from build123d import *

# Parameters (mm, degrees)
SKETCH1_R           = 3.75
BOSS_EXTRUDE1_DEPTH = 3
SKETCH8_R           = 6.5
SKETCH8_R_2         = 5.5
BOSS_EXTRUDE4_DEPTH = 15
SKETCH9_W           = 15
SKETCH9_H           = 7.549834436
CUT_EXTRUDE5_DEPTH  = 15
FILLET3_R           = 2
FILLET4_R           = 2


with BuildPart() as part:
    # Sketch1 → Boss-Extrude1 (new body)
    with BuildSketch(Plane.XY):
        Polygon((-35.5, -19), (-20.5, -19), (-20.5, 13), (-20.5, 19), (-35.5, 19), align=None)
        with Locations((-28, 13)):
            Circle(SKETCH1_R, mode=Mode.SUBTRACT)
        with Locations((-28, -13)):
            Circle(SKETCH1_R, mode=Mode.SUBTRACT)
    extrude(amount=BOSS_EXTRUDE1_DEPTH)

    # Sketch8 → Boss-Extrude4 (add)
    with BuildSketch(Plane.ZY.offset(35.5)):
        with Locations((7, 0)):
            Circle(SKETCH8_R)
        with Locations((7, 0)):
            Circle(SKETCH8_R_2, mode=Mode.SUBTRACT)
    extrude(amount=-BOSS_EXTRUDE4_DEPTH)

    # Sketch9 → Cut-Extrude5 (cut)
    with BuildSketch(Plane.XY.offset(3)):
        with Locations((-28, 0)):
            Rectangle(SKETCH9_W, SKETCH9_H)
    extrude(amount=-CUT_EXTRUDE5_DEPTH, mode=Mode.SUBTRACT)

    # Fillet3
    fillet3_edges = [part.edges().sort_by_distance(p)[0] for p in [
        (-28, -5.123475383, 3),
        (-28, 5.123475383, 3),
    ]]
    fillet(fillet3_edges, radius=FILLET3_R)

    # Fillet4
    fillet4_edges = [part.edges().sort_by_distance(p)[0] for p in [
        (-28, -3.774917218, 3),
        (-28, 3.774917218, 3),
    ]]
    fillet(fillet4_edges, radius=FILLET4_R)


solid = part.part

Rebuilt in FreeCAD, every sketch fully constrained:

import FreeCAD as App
import Part
import Sketcher

V = App.Vector
Q = App.Units.Quantity


def edges_at(feature, points):
    """Names of the edges that pass closest to the given points."""
    edges = feature.Shape.Edges
    near = lambda p: min(range(len(edges)), key=lambda i: edges[i].distToShape(Part.Vertex(*p))[0])
    return sorted({f"Edge{near(p) + 1}" for p in points})


def add_polygon(sketch, points):
    """Adds a closed chain of lines whose ends are joined by coincident constraints."""
    first, n = sketch.GeometryCount, len(points)
    for a, b in zip(points, points[1:] + points[:1]):
        sketch.addGeometry(Part.LineSegment(App.Vector(*a, 0), App.Vector(*b, 0)), False)
    for i in range(n):
        sketch.addConstraint(Sketcher.Constraint("Coincident", first + i, 2, first + (i + 1) % n, 1))

doc = App.newDocument("Part")
params = doc.addObject("Spreadsheet::Sheet", "Params")
for row, (alias, value) in enumerate([
    ("sketch1_diameter", "7.5 mm"),
    ("sketch1_width", "15 mm"),
    ("sketch1_height", "38 mm"),
    ("pad1_length", "3 mm"),
    ("sketch2_diameter", "13 mm"),
    ("sketch2_diameter2", "11 mm"),
    ("pad2_length", "15 mm"),
    ("sketch3_width", "15 mm"),
    ("pocket1_length", "15 mm"),
    ("fillet_radius", "2 mm"),
    ("fillet2_radius", "2 mm"),
], start=1):
    params.set(f"A{row}", alias)
    params.set(f"B{row}", "=" + value)
    params.setAlias(f"B{row}", alias)

body = doc.addObject("PartDesign::Body", "Body")

sketch1 = body.newObject("Sketcher::SketchObject", "Sketch")
sketch1.AttachmentSupport = (doc.getObject("XY_Plane"), [""])
sketch1.MapMode = "FlatFace"
add_polygon(sketch1, [(-35.5, -19), (-20.5, -19), (-20.5, 19), (-35.5, 19)])
sketch1.addGeometry(Part.Circle(V(-28, -13, 0), V(0, 0, 1), 3.8), False)
sketch1.addGeometry(Part.Circle(V(-28, 13, 0), V(0, 0, 1), 3.8), False)
sketch1.addConstraint([
    Sketcher.Constraint("Horizontal", 0),
    Sketcher.Constraint("Vertical", 1),
    Sketcher.Constraint("Horizontal", 2),
    Sketcher.Constraint("Vertical", 3),
    Sketcher.Constraint("Equal", 4, 5),
    Sketcher.Constraint("Symmetric", 4, 3, 5, 3, -1),
    Sketcher.Constraint("Diameter", 4, Q("7.5 mm")),
    Sketcher.Constraint("DistanceX", 0, 1, 0, 2, Q("15 mm")),
    Sketcher.Constraint("DistanceY", 1, 1, 1, 2, Q("38 mm")),
    Sketcher.Constraint("DistanceX", 4, 3, -1, 1, Q("28 mm")),
    Sketcher.Constraint("DistanceY", 4, 3, -1, 1, Q("13 mm")),
    Sketcher.Constraint("DistanceY", 0, 2, -1, 1, Q("19 mm")),
    Sketcher.Constraint("DistanceX", 0, 2, -1, 1, Q("20.5 mm")),
])
sketch1.setExpression("Constraints[10]", "Params.sketch1_diameter")
sketch1.setExpression("Constraints[11]", "Params.sketch1_width")
sketch1.setExpression("Constraints[12]", "Params.sketch1_height")
pad1 = body.newObject("PartDesign::Pad", "Pad")
pad1.Profile = sketch1
pad1.setExpression("Length", "Params.pad1_length")

sketch2 = body.newObject("Sketcher::SketchObject", "Sketch001")
sketch2.AttachmentSupport = (doc.getObject("YZ_Plane"), [""])
sketch2.MapMode = "FlatFace"
sketch2.AttachmentOffset = App.Placement(V(0, 0, -35.5), App.Rotation())
sketch2.addGeometry([
    Part.Circle(V(0, 7, 0), V(0, 0, 1), 6),
    Part.Circle(V(0, 7, 0), V(0, 0, 1), 6),
], False)
sketch2.addConstraint([
    Sketcher.Constraint("Coincident", 1, 3, 0, 3),
    Sketcher.Constraint("PointOnObject", 0, 3, -2),
    Sketcher.Constraint("Diameter", 0, Q("13 mm")),
    Sketcher.Constraint("Diameter", 1, Q("11 mm")),
    Sketcher.Constraint("DistanceY", -1, 1, 0, 3, Q("7 mm")),
])
sketch2.setExpression("Constraints[2]", "Params.sketch2_diameter")
sketch2.setExpression("Constraints[3]", "Params.sketch2_diameter2")
pad2 = body.newObject("PartDesign::Pad", "Pad001")
pad2.Profile = sketch2
pad2.setExpression("Length", "Params.pad2_length")

sketch3 = body.newObject("Sketcher::SketchObject", "Sketch002")
sketch3.AttachmentSupport = (doc.getObject("XY_Plane"), [""])
sketch3.MapMode = "FlatFace"
sketch3.AttachmentOffset = App.Placement(V(0, 0, 3), App.Rotation())
add_polygon(sketch3, [(-36, 4), (-36, -4), (-20, -4), (-20, 4)])
sketch3.addConstraint([
    Sketcher.Constraint("Vertical", 0),
    Sketcher.Constraint("Horizontal", 1),
    Sketcher.Constraint("Vertical", 2),
    Sketcher.Constraint("Horizontal", 3),
    Sketcher.Constraint("DistanceX", 1, 1, 1, 2, Q("15 mm")),
    Sketcher.Constraint("DistanceX", 0, 2, -1, 1, Q("35.5 mm")),
    Sketcher.Constraint("DistanceY", 0, 2, 0, 1, Q("7.549834 mm")),
    Sketcher.Constraint("DistanceY", 0, 2, -1, 1, Q("3.774917 mm")),
])
sketch3.setExpression("Constraints[8]", "Params.sketch3_width")
pocket1 = body.newObject("PartDesign::Pocket", "Pocket")
pocket1.Profile = sketch3
pocket1.setExpression("Length", "Params.pocket1_length")
doc.recompute()

fillet = body.newObject("PartDesign::Fillet", "Fillet")
fillet.Base = (pocket1, edges_at(pocket1, [(-28, -5.123, 3), (-28, 5.123, 3)]))
fillet.setExpression("Radius", "Params.fillet_radius")
doc.recompute()

fillet2 = body.newObject("PartDesign::Fillet", "Fillet001")
fillet2.Base = (fillet, edges_at(fillet, [(-28, -3.775, 3), (-28, 3.775, 3)]))
fillet2.setExpression("Radius", "Params.fillet2_radius")

doc.recompute()
